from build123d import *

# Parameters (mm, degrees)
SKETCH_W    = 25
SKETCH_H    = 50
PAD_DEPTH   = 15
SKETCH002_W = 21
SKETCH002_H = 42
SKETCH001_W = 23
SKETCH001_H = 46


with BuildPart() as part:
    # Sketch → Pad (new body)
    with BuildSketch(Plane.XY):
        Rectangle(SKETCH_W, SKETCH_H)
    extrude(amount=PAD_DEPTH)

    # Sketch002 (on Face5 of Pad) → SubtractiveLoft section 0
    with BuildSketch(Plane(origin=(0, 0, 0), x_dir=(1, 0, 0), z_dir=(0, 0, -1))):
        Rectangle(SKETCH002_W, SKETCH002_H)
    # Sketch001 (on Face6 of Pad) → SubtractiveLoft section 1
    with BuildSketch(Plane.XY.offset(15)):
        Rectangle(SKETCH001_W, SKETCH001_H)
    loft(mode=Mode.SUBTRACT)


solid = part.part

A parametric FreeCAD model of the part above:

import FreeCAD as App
import Part
import Sketcher
from FreeCAD import Vector


def add_polygon(sketch, points):
    """Adds a closed chain of lines whose ends are joined by coincident constraints."""
    first, n = sketch.GeometryCount, len(points)
    for a, b in zip(points, points[1:] + points[:1]):
        sketch.addGeometry(Part.LineSegment(App.Vector(*a, 0), App.Vector(*b, 0)), False)
    for i in range(n):
        sketch.addConstraint(Sketcher.Constraint("Coincident", first + i, 2, first + (i + 1) % n, 1))

doc = App.newDocument("Part")
params = doc.addObject("Spreadsheet::Sheet", "Params")
for row, (alias, value) in enumerate([
    ("sketch1_width", "25 mm"),
    ("sketch1_height", "50 mm"),
    ("pad1_length", "15 mm"),
    ("sketch2_width", "21 mm"),
    ("sketch2_height", "42 mm"),
    ("sketch3_width", "23 mm"),
    ("sketch3_height", "46 mm"),
], start=1):
    params.set(f"A{row}", alias)
    params.set(f"B{row}", "=" + value)
    params.setAlias(f"B{row}", alias)

body = doc.addObject("PartDesign::Body", "Body")

sketch1 = body.newObject("Sketcher::SketchObject", "Sketch")
sketch1.AttachmentSupport = (doc.getObject("XY_Plane"), [""])
sketch1.MapMode = "FlatFace"
add_polygon(sketch1, [(-12.5, 25), (-12.5, -25), (12.5, -25), (12.5, 25)])
sketch1.addConstraint([
    Sketcher.Constraint("Vertical", 0),
    Sketcher.Constraint("Horizontal", 1),
    Sketcher.Constraint("Vertical", 2),
    Sketcher.Constraint("Horizontal", 3),
    Sketcher.Constraint("Symmetric", 0, 2, 2, 2, -1, 1),
    Sketcher.Constraint("DistanceX", 1, 1, 1, 2, 25.0),
    Sketcher.Constraint("DistanceY", 0, 2, 0, 1, 50.0),
])
sketch1.setExpression("Constraints[9]", "Params.sketch1_width")
sketch1.setExpression("Constraints[10]", "Params.sketch1_height")
pad1 = body.newObject("PartDesign::Pad", "Pad")
pad1.Profile = sketch1
pad1.setExpression("Length", "Params.pad1_length")

sketch2 = body.newObject("Sketcher::SketchObject", "Sketch001")
sketch2.AttachmentSupport = (doc.getObject("XY_Plane"), [""])
sketch2.MapMode = "FlatFace"
add_polygon(sketch2, [(-10.5, -21), (-10.5, 21), (10.5, 21), (10.5, -21)])
sketch2.addConstraint([
    Sketcher.Constraint("Vertical", 0),
    Sketcher.Constraint("Horizontal", 1),
    Sketcher.Constraint("Vertical", 2),
    Sketcher.Constraint("Horizontal", 3),
    Sketcher.Constraint("Symmetric", 0, 2, 2, 2, -1, 1),
    Sketcher.Constraint("DistanceX", 1, 1, 1, 2, 21.0),
    Sketcher.Constraint("DistanceY", 0, 1, 0, 2, 42.0),
])
sketch2.setExpression("Constraints[9]", "Params.sketch2_width")
sketch2.setExpression("Constraints[10]", "Params.sketch2_height")

sketch3 = body.newObject("Sketcher::SketchObject", "Sketch002")
sketch3.AttachmentSupport = (doc.getObject("XY_Plane"), [""])
sketch3.MapMode = "FlatFace"
sketch3.AttachmentOffset = App.Placement(Vector(0, 0, 15), App.Rotation())
add_polygon(sketch3, [(-11.5, 23), (-11.5, -23), (11.5, -23), (11.5, 23)])
sketch3.addConstraint([
    Sketcher.Constraint("Vertical", 0),
    Sketcher.Constraint("Horizontal", 1),
    Sketcher.Constraint("Vertical", 2),
    Sketcher.Constraint("Horizontal", 3),
    Sketcher.Constraint("Symmetric", 0, 2, 2, 2, -1, 1),
    Sketcher.Constraint("DistanceX", 1, 1, 1, 2, 23.0),
    Sketcher.Constraint("DistanceY", 0, 2, 0, 1, 46.0),
])
sketch3.setExpression("Constraints[9]", "Params.sketch3_width")
sketch3.setExpression("Constraints[10]", "Params.sketch3_height")

subtractiveloft = body.newObject("PartDesign::SubtractiveLoft", "SubtractiveLoft")
subtractiveloft.Profile = sketch2
subtractiveloft.Sections = [sketch3]

doc.recompute()
